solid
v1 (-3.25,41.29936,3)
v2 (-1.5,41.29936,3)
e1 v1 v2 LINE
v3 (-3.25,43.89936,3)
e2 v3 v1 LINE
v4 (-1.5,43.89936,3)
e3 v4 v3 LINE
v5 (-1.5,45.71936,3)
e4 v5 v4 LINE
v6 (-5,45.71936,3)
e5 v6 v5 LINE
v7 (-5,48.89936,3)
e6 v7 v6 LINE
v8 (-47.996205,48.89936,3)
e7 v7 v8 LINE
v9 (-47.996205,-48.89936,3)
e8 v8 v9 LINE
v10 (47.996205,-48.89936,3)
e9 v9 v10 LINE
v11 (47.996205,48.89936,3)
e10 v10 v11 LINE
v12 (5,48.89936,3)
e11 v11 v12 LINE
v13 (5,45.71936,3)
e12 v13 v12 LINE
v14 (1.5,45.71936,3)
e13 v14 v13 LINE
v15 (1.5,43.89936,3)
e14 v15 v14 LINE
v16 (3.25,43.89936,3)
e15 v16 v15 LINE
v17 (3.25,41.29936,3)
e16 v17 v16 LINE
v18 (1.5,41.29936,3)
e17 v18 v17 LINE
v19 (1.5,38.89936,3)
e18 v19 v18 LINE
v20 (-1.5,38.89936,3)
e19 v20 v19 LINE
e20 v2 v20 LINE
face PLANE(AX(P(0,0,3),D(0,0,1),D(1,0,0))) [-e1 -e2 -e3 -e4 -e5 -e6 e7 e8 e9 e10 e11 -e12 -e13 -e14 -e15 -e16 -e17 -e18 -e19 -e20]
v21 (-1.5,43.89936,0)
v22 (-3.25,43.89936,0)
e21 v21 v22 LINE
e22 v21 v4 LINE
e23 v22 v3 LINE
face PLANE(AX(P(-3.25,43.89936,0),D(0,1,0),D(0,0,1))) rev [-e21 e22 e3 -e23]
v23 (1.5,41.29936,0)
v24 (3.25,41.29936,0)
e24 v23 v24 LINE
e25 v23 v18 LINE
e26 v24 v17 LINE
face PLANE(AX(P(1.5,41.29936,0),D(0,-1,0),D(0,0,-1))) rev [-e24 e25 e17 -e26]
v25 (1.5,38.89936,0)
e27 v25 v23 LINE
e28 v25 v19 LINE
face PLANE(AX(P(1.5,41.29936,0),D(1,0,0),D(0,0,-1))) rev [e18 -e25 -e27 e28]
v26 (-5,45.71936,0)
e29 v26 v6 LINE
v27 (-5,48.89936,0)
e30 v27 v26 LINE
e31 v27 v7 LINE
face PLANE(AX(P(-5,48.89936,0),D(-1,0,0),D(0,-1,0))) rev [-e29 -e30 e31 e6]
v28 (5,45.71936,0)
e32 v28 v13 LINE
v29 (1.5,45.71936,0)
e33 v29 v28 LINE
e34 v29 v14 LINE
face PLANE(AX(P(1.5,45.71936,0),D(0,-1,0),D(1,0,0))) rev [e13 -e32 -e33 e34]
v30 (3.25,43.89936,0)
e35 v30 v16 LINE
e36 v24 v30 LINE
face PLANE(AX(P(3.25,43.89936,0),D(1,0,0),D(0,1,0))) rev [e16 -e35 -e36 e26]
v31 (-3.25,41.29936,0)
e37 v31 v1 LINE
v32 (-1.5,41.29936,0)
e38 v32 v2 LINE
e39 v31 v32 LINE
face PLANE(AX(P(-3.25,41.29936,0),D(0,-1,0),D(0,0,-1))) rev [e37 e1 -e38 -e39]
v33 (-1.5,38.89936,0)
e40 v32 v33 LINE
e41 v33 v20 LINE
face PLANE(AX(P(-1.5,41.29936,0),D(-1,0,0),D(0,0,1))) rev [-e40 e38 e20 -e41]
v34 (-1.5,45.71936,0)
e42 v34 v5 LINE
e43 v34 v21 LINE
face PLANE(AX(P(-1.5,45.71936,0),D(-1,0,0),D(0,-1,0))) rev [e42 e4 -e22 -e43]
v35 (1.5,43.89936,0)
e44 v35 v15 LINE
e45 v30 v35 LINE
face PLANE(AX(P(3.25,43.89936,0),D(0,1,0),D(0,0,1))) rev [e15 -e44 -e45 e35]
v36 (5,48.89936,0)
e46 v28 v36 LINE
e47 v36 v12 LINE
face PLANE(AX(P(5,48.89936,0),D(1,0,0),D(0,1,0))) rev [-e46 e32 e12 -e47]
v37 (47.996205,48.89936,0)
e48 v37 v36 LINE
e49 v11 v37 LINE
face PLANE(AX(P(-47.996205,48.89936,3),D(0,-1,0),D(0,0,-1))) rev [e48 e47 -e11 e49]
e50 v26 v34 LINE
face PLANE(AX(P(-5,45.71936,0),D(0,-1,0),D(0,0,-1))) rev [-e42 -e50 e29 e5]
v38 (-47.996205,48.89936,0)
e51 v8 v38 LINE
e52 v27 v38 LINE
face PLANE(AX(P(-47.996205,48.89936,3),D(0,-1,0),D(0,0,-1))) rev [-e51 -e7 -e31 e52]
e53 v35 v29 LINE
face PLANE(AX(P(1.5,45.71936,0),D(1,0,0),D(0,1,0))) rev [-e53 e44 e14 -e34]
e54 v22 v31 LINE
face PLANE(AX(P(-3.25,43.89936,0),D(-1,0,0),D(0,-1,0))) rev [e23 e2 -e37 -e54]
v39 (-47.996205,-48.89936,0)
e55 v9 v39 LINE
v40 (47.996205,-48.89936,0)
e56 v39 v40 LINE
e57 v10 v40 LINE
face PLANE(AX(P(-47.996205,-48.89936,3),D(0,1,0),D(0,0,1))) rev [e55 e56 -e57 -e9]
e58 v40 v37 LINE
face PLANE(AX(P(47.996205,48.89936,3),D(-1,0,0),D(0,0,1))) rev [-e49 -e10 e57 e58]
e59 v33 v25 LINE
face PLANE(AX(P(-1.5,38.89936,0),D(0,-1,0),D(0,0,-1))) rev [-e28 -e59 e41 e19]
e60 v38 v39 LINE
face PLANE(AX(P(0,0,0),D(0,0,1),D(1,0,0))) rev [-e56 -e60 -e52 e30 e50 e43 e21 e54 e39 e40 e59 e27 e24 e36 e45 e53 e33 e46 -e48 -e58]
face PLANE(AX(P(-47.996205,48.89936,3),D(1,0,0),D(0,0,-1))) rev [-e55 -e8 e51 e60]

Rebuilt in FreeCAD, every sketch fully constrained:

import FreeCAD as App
import Part
import Sketcher

V = App.Vector

doc = App.newDocument("Part")
body = doc.addObject("PartDesign::Body", "Body")

sketch1 = body.newObject("Sketcher::SketchObject", "Sketch")
sketch1.AttachmentSupport = (doc.getObject("XY_Plane"), [""])
sketch1.MapMode = "FlatFace"
sketch1.addGeometry([
    Part.LineSegment(V(-48, 49, 0), V(-48, -49, 0)),
    Part.LineSegment(V(-48, -49, 0), V(48, -49, 0)),
    Part.LineSegment(V(48, -49, 0), V(48, 49, 0)),
    Part.LineSegment(V(48, 49, 0), V(-48, 49, 0)),
], False)
sketch1.addConstraint([
    Sketcher.Constraint("Coincident", 0, 2, 1, 1),
    Sketcher.Constraint("Coincident", 1, 2, 2, 1),
    Sketcher.Constraint("Coincident", 2, 2, 3, 1),
    Sketcher.Constraint("Coincident", 3, 2, 0, 1),
    Sketcher.Constraint("Vertical", 0),
    Sketcher.Constraint("Horizontal", 1),
    Sketcher.Constraint("Vertical", 2),
    Sketcher.Constraint("Horizontal", 3),
    Sketcher.Constraint("Symmetric", 0, 2, 2, 2, -1, 1),
    Sketcher.Constraint("DistanceX", 1, 1, 1, 2, 95.99241),
    Sketcher.Constraint("DistanceY", 0, 2, 0, 1, 97.798719),
])
pad1 = body.newObject("PartDesign::Pad", "Pad")
pad1.Profile = sketch1
pad1.Length = 3

sketch2 = body.newObject("Sketcher::SketchObject", "Sketch001")
sketch2.AttachmentSupport = (doc.getObject("XY_Plane"), [""])
sketch2.MapMode = "FlatFace"
sketch2.AttachmentOffset = App.Placement(V(0, 0, 3), App.Rotation())
sketch2.addGeometry([
    Part.LineSegment(V(1.5, 45.7, 0), V(5, 45.7, 0)),
    Part.LineSegment(V(5, 45.7, 0), V(5, 48.9, 0)),
    Part.LineSegment(V(5, 48.9, 0), V(-5, 48.9, 0)),
    Part.LineSegment(V(-5, 48.9, 0), V(-5, 45.7, 0)),
    Part.LineSegment(V(-5, 45.7, 0), V(-1.5, 45.7, 0)),
    Part.LineSegment(V(-1.5, 45.7, 0), V(-1.5, 43.9, 0)),
    Part.LineSegment(V(-1.5, 43.9, 0), V(-3.2, 43.9, 0)),
    Part.LineSegment(V(-3.2, 43.9, 0), V(-3.2, 41.3, 0)),
    Part.LineSegment(V(-3.2, 41.3, 0), V(-1.5, 41.3, 0)),
    Part.LineSegment(V(-1.5, 41.3, 0), V(-1.5, 38.9, 0)),
    Part.LineSegment(V(-1.5, 38.9, 0), V(1.5, 38.9, 0)),
    Part.LineSegment(V(1.5, 38.9, 0), V(1.5, 41.3, 0)),
    Part.LineSegment(V(1.5, 41.3, 0), V(3.2, 41.3, 0)),
    Part.LineSegment(V(3.2, 41.3, 0), V(3.2, 43.9, 0)),
    Part.LineSegment(V(3.2, 43.9, 0), V(1.5, 43.9, 0)),
    Part.LineSegment(V(1.5, 43.9, 0), V(1.5, 45.7, 0)),
], False)
sketch2.addConstraint([
    Sketcher.Constraint("Coincident", 0, 2, 1, 1),
    Sketcher.Constraint("Coincident", 1, 2, 2, 1),
    Sketcher.Constraint("Coincident", 2, 2, 3, 1),
    Sketcher.Constraint("Coincident", 3, 2, 4, 1),
    Sketcher.Constraint("Coincident", 4, 2, 5, 1),
    Sketcher.Constraint("Coincident", 5, 2, 6, 1),
    Sketcher.Constraint("Coincident", 6, 2, 7, 1),
    Sketcher.Constraint("Coincident", 7, 2, 8, 1),
    Sketcher.Constraint("Coincident", 8, 2, 9, 1),
    Sketcher.Constraint("Coincident", 9, 2, 10, 1),
    Sketcher.Constraint("Coincident", 10, 2, 11, 1),
    Sketcher.Constraint("Coincident", 11, 2, 12, 1),
    Sketcher.Constraint("Coincident", 12, 2, 13, 1),
    Sketcher.Constraint("Coincident", 13, 2, 14, 1),
    Sketcher.Constraint("Coincident", 14, 2, 15, 1),
    Sketcher.Constraint("Coincident", 15, 2, 0, 1),
    Sketcher.Constraint("Horizontal", 0),
    Sketcher.Constraint("Vertical", 1),
    Sketcher.Constraint("Horizontal", 2),
    Sketcher.Constraint("Vertical", 3),
    Sketcher.Constraint("Horizontal", 4),
    Sketcher.Constraint("Vertical", 5),
    Sketcher.Constraint("Horizontal", 6),
    Sketcher.Constraint("Vertical", 7),
    Sketcher.Constraint("Horizontal", 8),
    Sketcher.Constraint("Vertical", 9),
    Sketcher.Constraint("Horizontal", 10),
    Sketcher.Constraint("Vertical", 11),
    Sketcher.Constraint("Horizontal", 12),
    Sketcher.Constraint("Vertical", 13),
    Sketcher.Constraint("Horizontal", 14),
    Sketcher.Constraint("Vertical", 15),
    Sketcher.Constraint("Symmetric", 0, 2, 3, 2, -2),
    Sketcher.Constraint("Symmetric", 8, 2, 11, 2, -2),
    Sketcher.Constraint("Symmetric", 6, 2, 13, 2, -2),
    Sketcher.Constraint("Vertical", 5, 2, 8, 2),
    Sketcher.Constraint("Vertical", 11, 2, 14, 2),
    Sketcher.Constraint("DistanceX", 2, 2, 2, 1, 10.0),
    Sketcher.Constraint("DistanceX", 10, 1, 10, 2, 3.0),
    Sketcher.Constraint("DistanceY", 7, 2, 7, 1, 2.6),
    Sketcher.Constraint("DistanceY", 9, 2, 9, 1, 2.4),
    Sketcher.Constraint("DistanceY", 5, 2, 2, 2, 5.0),
    Sketcher.Constraint("DistanceX", 6, 2, 6, 1, 1.75),
    Sketcher.Constraint("DistanceY", 1, 1, 1, 2, 3.18),
    Sketcher.Constraint("DistanceY", -1, 1, 0, 2, 45.71936),
])
pocket1 = body.newObject("PartDesign::Pocket", "Pocket")
pocket1.Profile = sketch2
pocket1.Type = "ThroughAll"

doc.recompute()
